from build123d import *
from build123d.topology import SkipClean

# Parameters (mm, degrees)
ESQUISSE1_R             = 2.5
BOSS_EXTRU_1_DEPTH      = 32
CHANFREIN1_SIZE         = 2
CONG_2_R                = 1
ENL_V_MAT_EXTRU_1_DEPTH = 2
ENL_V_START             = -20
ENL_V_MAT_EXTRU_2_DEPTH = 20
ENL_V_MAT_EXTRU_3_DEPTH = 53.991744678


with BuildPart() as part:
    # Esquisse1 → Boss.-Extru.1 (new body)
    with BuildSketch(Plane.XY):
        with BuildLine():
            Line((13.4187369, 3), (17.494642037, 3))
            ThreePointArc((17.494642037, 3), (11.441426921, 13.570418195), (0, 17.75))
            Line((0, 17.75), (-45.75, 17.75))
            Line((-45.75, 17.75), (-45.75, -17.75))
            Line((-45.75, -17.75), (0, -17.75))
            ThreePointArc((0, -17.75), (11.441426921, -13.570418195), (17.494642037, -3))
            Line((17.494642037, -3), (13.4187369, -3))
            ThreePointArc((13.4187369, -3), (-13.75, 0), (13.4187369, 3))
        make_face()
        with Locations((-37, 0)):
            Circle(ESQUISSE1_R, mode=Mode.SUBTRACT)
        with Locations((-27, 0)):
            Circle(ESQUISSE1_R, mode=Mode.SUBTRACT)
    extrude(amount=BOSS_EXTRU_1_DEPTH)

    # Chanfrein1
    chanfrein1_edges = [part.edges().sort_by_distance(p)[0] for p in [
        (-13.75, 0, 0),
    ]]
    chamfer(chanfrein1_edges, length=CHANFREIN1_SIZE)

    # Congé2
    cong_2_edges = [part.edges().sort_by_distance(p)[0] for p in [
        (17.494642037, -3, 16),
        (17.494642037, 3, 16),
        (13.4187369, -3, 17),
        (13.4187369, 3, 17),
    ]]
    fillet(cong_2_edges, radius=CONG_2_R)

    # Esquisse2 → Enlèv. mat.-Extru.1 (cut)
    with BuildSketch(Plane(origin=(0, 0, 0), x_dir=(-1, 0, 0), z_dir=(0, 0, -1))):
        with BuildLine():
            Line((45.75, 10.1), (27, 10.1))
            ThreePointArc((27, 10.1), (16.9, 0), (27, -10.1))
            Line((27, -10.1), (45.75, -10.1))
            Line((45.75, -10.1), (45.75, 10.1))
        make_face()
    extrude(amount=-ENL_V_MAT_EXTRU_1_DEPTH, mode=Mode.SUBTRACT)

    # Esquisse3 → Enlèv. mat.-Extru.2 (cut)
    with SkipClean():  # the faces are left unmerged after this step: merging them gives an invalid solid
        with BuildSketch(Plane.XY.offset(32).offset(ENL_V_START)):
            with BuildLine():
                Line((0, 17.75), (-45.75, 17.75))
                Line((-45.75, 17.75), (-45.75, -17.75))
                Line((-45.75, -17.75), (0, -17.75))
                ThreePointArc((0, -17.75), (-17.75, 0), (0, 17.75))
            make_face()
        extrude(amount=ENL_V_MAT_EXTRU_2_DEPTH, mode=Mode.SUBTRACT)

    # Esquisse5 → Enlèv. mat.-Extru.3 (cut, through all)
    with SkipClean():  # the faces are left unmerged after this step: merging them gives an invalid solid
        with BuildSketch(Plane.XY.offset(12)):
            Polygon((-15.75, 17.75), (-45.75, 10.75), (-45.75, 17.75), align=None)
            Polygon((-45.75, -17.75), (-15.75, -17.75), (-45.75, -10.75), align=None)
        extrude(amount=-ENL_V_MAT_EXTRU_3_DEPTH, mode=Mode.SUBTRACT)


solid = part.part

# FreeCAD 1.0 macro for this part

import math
import FreeCAD as App
import Part
import Sketcher
Q = App.Units.Quantity


def edges_at(feature, points):
    """Names of the edges that pass closest to the given points."""
    edges = feature.Shape.Edges
    near = lambda p: min(range(len(edges)), key=lambda i: edges[i].distToShape(Part.Vertex(*p))[0])
    return sorted({f"Edge{near(p) + 1}" for p in points})


def add_polygon(sketch, points):
    """Adds a closed chain of lines whose ends are joined by coincident constraints."""
    first, n = sketch.GeometryCount, len(points)
    for a, b in zip(points, points[1:] + points[:1]):
        sketch.addGeometry(Part.LineSegment(App.Vector(*a, 0), App.Vector(*b, 0)), False)
    for i in range(n):
        sketch.addConstraint(Sketcher.Constraint("Coincident", first + i, 2, first + (i + 1) % n, 1))

doc = App.newDocument("Part")
params = doc.addObject("Spreadsheet::Sheet", "Params")
for row, (alias, value) in enumerate([
    ("sketch1_diameter", "5 mm"),
    ("sketch1_radius", "17.75 mm"),
    ("sketch1_radius2", "13.75 mm"),
    ("sketch1_width", "45.75 mm"),
    ("pad1_length", "32 mm"),
    ("chamfer_size", "2 mm"),
    ("fillet_radius", "1 mm"),
    ("sketch2_radius", "10.1 mm"),
    ("sketch2_width", "18.75 mm"),
    ("pocket1_length", "2 mm"),
    ("sketch3_radius", "17.75 mm"),
    ("sketch3_width", "45.75 mm"),
    ("pocket2_length", "20 mm"),
    ("sketch4_width", "30 mm"),
    ("sketch4_height", "7 mm"),
], start=1):
    params.set(f"A{row}", alias)
    params.set(f"B{row}", "=" + value)
    params.setAlias(f"B{row}", alias)

body = doc.addObject("PartDesign::Body", "Body")

sketch1 = body.newObject("Sketcher::SketchObject", "Sketch")
sketch1.AttachmentSupport = (doc.getObject("XY_Plane"), [""])
sketch1.MapMode = "FlatFace"
sketch1.addGeometry([
    Part.LineSegment(App.Vector(13.418737, 3, 0), App.Vector(17.494642, 3, 0)),
    Part.ArcOfCircle(Part.Circle(App.Vector(0, 0, 0), App.Vector(0, 0, 1), 17.75), math.radians(9.730501), math.radians(90)),
    Part.LineSegment(App.Vector(0, 17.75, 0), App.Vector(-45.75, 17.75, 0)),
    Part.LineSegment(App.Vector(-45.75, 17.75, 0), App.Vector(-45.75, -17.75, 0)),
    Part.LineSegment(App.Vector(-45.75, -17.75, 0), App.Vector(0, -17.75, 0)),
    Part.ArcOfCircle(Part.Circle(App.Vector(0, 0, 0), App.Vector(0, 0, 1), 17.75), math.radians(-90), math.radians(-9.730501)),
    Part.LineSegment(App.Vector(17.494642, -3, 0), App.Vector(13.418737, -3, 0)),
    Part.ArcOfCircle(Part.Circle(App.Vector(0, 0, 0), App.Vector(0, 0, 1), 13.75), math.radians(12.602265), math.radians(347.397735)),
    Part.Circle(App.Vector(-37, 0, 0), App.Vector(0, 0, 1), 2.5),
    Part.Circle(App.Vector(-27, 0, 0), App.Vector(0, 0, 1), 2.5),
], False)
sketch1.addConstraint([
    Sketcher.Constraint("Coincident", 0, 2, 1, 1),
    Sketcher.Constraint("Tangent", 1, 2, 2, 1),
    Sketcher.Constraint("Coincident", 2, 2, 3, 1),
    Sketcher.Constraint("Coincident", 3, 2, 4, 1),
    Sketcher.Constraint("Tangent", 4, 2, 5, 1),
    Sketcher.Constraint("Coincident", 5, 2, 6, 1),
    Sketcher.Constraint("Coincident", 6, 2, 7, 2),
    Sketcher.Constraint("Coincident", 7, 1, 0, 1),
    Sketcher.Constraint("Horizontal", 0),
    Sketcher.Constraint("Horizontal", 2),
    Sketcher.Constraint("Vertical", 3),
    Sketcher.Constraint("Horizontal", 4),
    Sketcher.Constraint("Horizontal", 6),
    Sketcher.Constraint("Coincident", 1, 3, -1, 1),
    Sketcher.Constraint("Coincident", 5, 3, -1, 1),
    Sketcher.Constraint("Coincident", 7, 3, -1, 1),
    Sketcher.Constraint("Equal", 1, 5),
    Sketcher.Constraint("Equal", 8, 9),
    Sketcher.Constraint("PointOnObject", 8, 3, -1),
    Sketcher.Constraint("PointOnObject", 9, 3, -1),
    Sketcher.Constraint("Vertical", 0, 2, 5, 2),
    Sketcher.Constraint("Diameter", 8, Q("5 mm")),
    Sketcher.Constraint("Radius", 1, Q("17.75 mm")),
    Sketcher.Constraint("Radius", 7, Q("13.75 mm")),
    Sketcher.Constraint("DistanceX", 8, 3, -1, 1, Q("37 mm")),
    Sketcher.Constraint("DistanceX", 9, 3, -1, 1, Q("27 mm")),
    Sketcher.Constraint("DistanceY", -1, 1, 0, 2, Q("3 mm")),
    Sketcher.Constraint("DistanceX", 2, 2, 2, 1, Q("45.75 mm")),
])
sketch1.setExpression("Constraints[21]", "Params.sketch1_diameter")
sketch1.setExpression("Constraints[22]", "Params.sketch1_radius")
sketch1.setExpression("Constraints[23]", "Params.sketch1_radius2")
sketch1.setExpression("Constraints[27]", "Params.sketch1_width")
pad1 = body.newObject("PartDesign::Pad", "Pad")
pad1.Profile = sketch1
pad1.setExpression("Length", "Params.pad1_length")
doc.recompute()

chamfer = body.newObject("PartDesign::Chamfer", "Chamfer")
chamfer.Base = (pad1, edges_at(pad1, [(-13.75, 0, 0)]))
chamfer.setExpression("Size", "Params.chamfer_size")
doc.recompute()

fillet = body.newObject("PartDesign::Fillet", "Fillet")
fillet.Base = (chamfer, edges_at(chamfer, [
    (17.495, -3, 16),
    (17.495, 3, 16),
    (13.419, -3, 17),
    (13.419, 3, 17),
]))
fillet.setExpression("Radius", "Params.fillet_radius")

sketch2 = body.newObject("Sketcher::SketchObject", "Sketch001")
sketch2.AttachmentSupport = (doc.getObject("XY_Plane"), [""])
sketch2.MapMode = "FlatFace"
sketch2.addGeometry([
    Part.LineSegment(App.Vector(-45.75, 10.1, 0), App.Vector(-27, 10.1, 0)),
    Part.ArcOfCircle(Part.Circle(App.Vector(-27, 0, 0), App.Vector(0, 0, 1), 10.1), math.radians(-90), math.radians(90)),
    Part.LineSegment(App.Vector(-27, -10.1, 0), App.Vector(-45.75, -10.1, 0)),
    Part.LineSegment(App.Vector(-45.75, -10.1, 0), App.Vector(-45.75, 10.1, 0)),
], False)
sketch2.addConstraint([
    Sketcher.Constraint("Tangent", 0, 2, 1, 2),
    Sketcher.Constraint("Tangent", 1, 1, 2, 1),
    Sketcher.Constraint("Coincident", 2, 2, 3, 1),
    Sketcher.Constraint("Coincident", 3, 2, 0, 1),
    Sketcher.Constraint("Horizontal", 0),
    Sketcher.Constraint("Horizontal", 2),
    Sketcher.Constraint("Vertical", 3),
    Sketcher.Constraint("PointOnObject", 1, 3, -1),
    Sketcher.Constraint("Radius", 1, Q("10.1 mm")),
    Sketcher.Constraint("DistanceX", 1, 3, -1, 1, Q("27 mm")),
    Sketcher.Constraint("DistanceX", 0, 1, 0, 2, Q("18.75 mm")),
])
sketch2.setExpression("Constraints[8]", "Params.sketch2_radius")
sketch2.setExpression("Constraints[10]", "Params.sketch2_width")
pocket1 = body.newObject("PartDesign::Pocket", "Pocket")
pocket1.Profile = sketch2
pocket1.setExpression("Length", "Params.pocket1_length")
pocket1.Reversed = True

sketch3 = body.newObject("Sketcher::SketchObject", "Sketch002")
sketch3.AttachmentSupport = (doc.getObject("XY_Plane"), [""])
sketch3.MapMode = "FlatFace"
sketch3.AttachmentOffset = App.Placement(App.Vector(0, 0, 12), App.Rotation())
sketch3.addGeometry([
    Part.LineSegment(App.Vector(0, 17.75, 0), App.Vector(-45.75, 17.75, 0)),
    Part.LineSegment(App.Vector(-45.75, 17.75, 0), App.Vector(-45.75, -17.75, 0)),
    Part.LineSegment(App.Vector(-45.75, -17.75, 0), App.Vector(0, -17.75, 0)),
    Part.ArcOfCircle(Part.Circle(App.Vector(0, 0, 0), App.Vector(0, 0, 1), 17.75), math.radians(90), math.radians(270)),
], False)
sketch3.addConstraint([
    Sketcher.Constraint("Coincident", 0, 2, 1, 1),
    Sketcher.Constraint("Coincident", 1, 2, 2, 1),
    Sketcher.Constraint("Tangent", 2, 2, 3, 2),
    Sketcher.Constraint("Tangent", 3, 1, 0, 1),
    Sketcher.Constraint("Horizontal", 0),
    Sketcher.Constraint("Vertical", 1),
    Sketcher.Constraint("Horizontal", 2),
    Sketcher.Constraint("Coincident", 3, 3, -1, 1),
    Sketcher.Constraint("Radius", 3, Q("17.75 mm")),
    Sketcher.Constraint("DistanceX", 0, 2, 0, 1, Q("45.75 mm")),
])
sketch3.setExpression("Constraints[8]", "Params.sketch3_radius")
sketch3.setExpression("Constraints[9]", "Params.sketch3_width")
pocket2 = body.newObject("PartDesign::Pocket", "Pocket001")
pocket2.Profile = sketch3
pocket2.setExpression("Length", "Params.pocket2_length")
pocket2.Reversed = True

sketch4 = body.newObject("Sketcher::SketchObject", "Sketch003")
sketch4.AttachmentSupport = (doc.getObject("XY_Plane"), [""])
sketch4.MapMode = "FlatFace"
sketch4.AttachmentOffset = App.Placement(App.Vector(0, 0, 12), App.Rotation())
add_polygon(sketch4, [(-45.75, 10.75), (-15.75, 17.75), (-45.75, 17.75)])
add_polygon(sketch4, [(-45.75, -17.75), (-15.75, -17.75), (-45.75, -10.75)])
sketch4.addConstraint([
    Sketcher.Constraint("Horizontal", 1),
    Sketcher.Constraint("Vertical", 2),
    Sketcher.Constraint("Horizontal", 3),
    Sketcher.Constraint("Vertical", 5),
    Sketcher.Constraint("Symmetric", 0, 2, 3, 2, -1),
    Sketcher.Constraint("Symmetric", 2, 2, 4, 2, -1),
    Sketcher.Constraint("DistanceX", 1, 2, 1, 1, Q("30 mm")),
    Sketcher.Constraint("DistanceY", 2, 2, 2, 1, Q("7 mm")),
    Sketcher.Constraint("DistanceY", 3, 2, 0, 2, Q("35.5 mm")),
    Sketcher.Constraint("DistanceX", 0, 2, -1, 1, Q("15.75 mm")),
])
sketch4.setExpression("Constraints[12]", "Params.sketch4_width")
sketch4.setExpression("Constraints[13]", "Params.sketch4_height")
pocket3 = body.newObject("PartDesign::Pocket", "Pocket002")
pocket3.Profile = sketch4
pocket3.Type = "ThroughAll"

doc.recompute()
